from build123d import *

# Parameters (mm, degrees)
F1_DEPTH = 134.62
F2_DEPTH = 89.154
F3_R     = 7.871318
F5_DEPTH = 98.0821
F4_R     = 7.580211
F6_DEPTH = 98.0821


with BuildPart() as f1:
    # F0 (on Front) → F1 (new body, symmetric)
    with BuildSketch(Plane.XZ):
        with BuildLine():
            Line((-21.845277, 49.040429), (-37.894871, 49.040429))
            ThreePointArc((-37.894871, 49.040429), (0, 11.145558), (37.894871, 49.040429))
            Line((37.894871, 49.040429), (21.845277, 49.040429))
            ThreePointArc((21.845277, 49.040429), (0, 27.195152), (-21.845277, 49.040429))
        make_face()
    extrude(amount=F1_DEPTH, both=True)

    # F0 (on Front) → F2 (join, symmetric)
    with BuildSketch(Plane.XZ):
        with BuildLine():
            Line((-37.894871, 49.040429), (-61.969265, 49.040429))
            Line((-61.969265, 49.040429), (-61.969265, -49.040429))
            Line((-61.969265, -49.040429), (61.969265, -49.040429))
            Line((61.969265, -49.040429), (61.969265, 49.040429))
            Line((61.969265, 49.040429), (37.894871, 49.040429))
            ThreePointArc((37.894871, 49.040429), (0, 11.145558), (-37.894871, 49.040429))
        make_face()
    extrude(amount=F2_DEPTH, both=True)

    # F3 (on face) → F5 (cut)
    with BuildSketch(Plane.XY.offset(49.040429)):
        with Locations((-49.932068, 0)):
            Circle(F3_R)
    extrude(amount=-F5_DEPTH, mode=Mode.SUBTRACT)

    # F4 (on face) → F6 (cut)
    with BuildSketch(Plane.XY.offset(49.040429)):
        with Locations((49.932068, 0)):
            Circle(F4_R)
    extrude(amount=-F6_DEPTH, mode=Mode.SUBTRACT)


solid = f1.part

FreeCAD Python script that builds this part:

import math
import FreeCAD as App
import Part
import Sketcher
Q = App.Units.Quantity

doc = App.newDocument("Part")
body = doc.addObject("PartDesign::Body", "Body")

sketch1 = body.newObject("Sketcher::SketchObject", "Sketch")
sketch1.AttachmentSupport = (doc.getObject("XZ_Plane"), [""])
sketch1.MapMode = "FlatFace"
sketch1.addGeometry([
    Part.LineSegment(App.Vector(-22, 49, 0), App.Vector(-38, 49, 0)),
    Part.ArcOfCircle(Part.Circle(App.Vector(0, 49, 0), App.Vector(0, 0, 1), 38), math.radians(180), math.radians(360)),
    Part.LineSegment(App.Vector(38, 49, 0), App.Vector(22, 49, 0)),
    Part.ArcOfCircle(Part.Circle(App.Vector(0, 49, 0), App.Vector(0, 0, 1), 22), math.radians(180), math.radians(360)),
], False)
sketch1.addConstraint([
    Sketcher.Constraint("Coincident", 0, 2, 1, 1),
    Sketcher.Constraint("Coincident", 1, 2, 2, 1),
    Sketcher.Constraint("Coincident", 2, 2, 3, 2),
    Sketcher.Constraint("Coincident", 3, 1, 0, 1),
    Sketcher.Constraint("Horizontal", 0),
    Sketcher.Constraint("Horizontal", 2),
    Sketcher.Constraint("Coincident", 3, 3, 1, 3),
    Sketcher.Constraint("Symmetric", 0, 2, 1, 2, -2),
    Sketcher.Constraint("Horizontal", 3, 3, 0, 2),
    Sketcher.Constraint("Radius", 1, 37.894871),
    Sketcher.Constraint("Radius", 3, 21.845277),
    Sketcher.Constraint("DistanceY", -1, 1, 1, 3, 49.040429),
])
pad1 = body.newObject("PartDesign::Pad", "Pad")
pad1.Profile = sketch1
pad1.Length = Q("10.6 in")
pad1.Midplane = True

sketch2 = body.newObject("Sketcher::SketchObject", "Sketch001")
sketch2.AttachmentSupport = (doc.getObject("XZ_Plane"), [""])
sketch2.MapMode = "FlatFace"
sketch2.addGeometry([
    Part.LineSegment(App.Vector(-38, 49, 0), App.Vector(-62, 49, 0)),
    Part.LineSegment(App.Vector(-62, 49, 0), App.Vector(-62, -49, 0)),
    Part.LineSegment(App.Vector(-62, -49, 0), App.Vector(62, -49, 0)),
    Part.LineSegment(App.Vector(62, -49, 0), App.Vector(62, 49, 0)),
    Part.LineSegment(App.Vector(62, 49, 0), App.Vector(38, 49, 0)),
    Part.ArcOfCircle(Part.Circle(App.Vector(0, 49, 0), App.Vector(0, 0, 1), 38), math.radians(180), math.radians(360)),
], False)
sketch2.addConstraint([
    Sketcher.Constraint("Coincident", 0, 2, 1, 1),
    Sketcher.Constraint("Coincident", 1, 2, 2, 1),
    Sketcher.Constraint("Coincident", 2, 2, 3, 1),
    Sketcher.Constraint("Coincident", 3, 2, 4, 1),
    Sketcher.Constraint("Coincident", 4, 2, 5, 2),
    Sketcher.Constraint("Coincident", 5, 1, 0, 1),
    Sketcher.Constraint("Horizontal", 0),
    Sketcher.Constraint("Vertical", 1),
    Sketcher.Constraint("Horizontal", 2),
    Sketcher.Constraint("Vertical", 3),
    Sketcher.Constraint("Horizontal", 4),
    Sketcher.Constraint("Symmetric", 0, 2, 2, 2, -1, 1),
    Sketcher.Constraint("Symmetric", 4, 2, 5, 1, -2),
    Sketcher.Constraint("Horizontal", 5, 3, 0, 2),
    Sketcher.Constraint("Radius", 5, 37.894871),
    Sketcher.Constraint("DistanceX", 2, 1, 2, 2, 123.93853),
    Sketcher.Constraint("DistanceY", 1, 2, 1, 1, 98.080858),
])
pad2 = body.newObject("PartDesign::Pad", "Pad001")
pad2.Profile = sketch2
pad2.Length = Q("7.02 in")
pad2.Midplane = True

sketch3 = body.newObject("Sketcher::SketchObject", "Sketch002")
sketch3.AttachmentSupport = (doc.getObject("XY_Plane"), [""])
sketch3.MapMode = "FlatFace"
sketch3.AttachmentOffset = App.Placement(App.Vector(0, 0, 49.040429), App.Rotation())
sketch3.addGeometry(Part.Circle(App.Vector(-50, 0, 0), App.Vector(0, 0, 1), 8), False)
sketch3.addConstraint([
    Sketcher.Constraint("PointOnObject", 0, 3, -1),
    Sketcher.Constraint("Diameter", 0, 15.742636),
    Sketcher.Constraint("DistanceX", 0, 3, -1, 1, 49.932068),
])
pocket1 = body.newObject("PartDesign::Pocket", "Pocket")
pocket1.Profile = sketch3
pocket1.Length = Q("3.8615 in")

sketch4 = body.newObject("Sketcher::SketchObject", "Sketch003")
sketch4.AttachmentSupport = (doc.getObject("XY_Plane"), [""])
sketch4.MapMode = "FlatFace"
sketch4.AttachmentOffset = App.Placement(App.Vector(0, 0, 49.040429), App.Rotation())
sketch4.addGeometry(Part.Circle(App.Vector(50, 0, 0), App.Vector(0, 0, 1), 8), False)
sketch4.addConstraint([
    Sketcher.Constraint("PointOnObject", 0, 3, -1),
    Sketcher.Constraint("Diameter", 0, 15.160422),
    Sketcher.Constraint("DistanceX", -1, 1, 0, 3, 49.932068),
])
pocket2 = body.newObject("PartDesign::Pocket", "Pocket001")
pocket2.Profile = sketch4
pocket2.Length = Q("3.8615 in")

doc.recompute()
